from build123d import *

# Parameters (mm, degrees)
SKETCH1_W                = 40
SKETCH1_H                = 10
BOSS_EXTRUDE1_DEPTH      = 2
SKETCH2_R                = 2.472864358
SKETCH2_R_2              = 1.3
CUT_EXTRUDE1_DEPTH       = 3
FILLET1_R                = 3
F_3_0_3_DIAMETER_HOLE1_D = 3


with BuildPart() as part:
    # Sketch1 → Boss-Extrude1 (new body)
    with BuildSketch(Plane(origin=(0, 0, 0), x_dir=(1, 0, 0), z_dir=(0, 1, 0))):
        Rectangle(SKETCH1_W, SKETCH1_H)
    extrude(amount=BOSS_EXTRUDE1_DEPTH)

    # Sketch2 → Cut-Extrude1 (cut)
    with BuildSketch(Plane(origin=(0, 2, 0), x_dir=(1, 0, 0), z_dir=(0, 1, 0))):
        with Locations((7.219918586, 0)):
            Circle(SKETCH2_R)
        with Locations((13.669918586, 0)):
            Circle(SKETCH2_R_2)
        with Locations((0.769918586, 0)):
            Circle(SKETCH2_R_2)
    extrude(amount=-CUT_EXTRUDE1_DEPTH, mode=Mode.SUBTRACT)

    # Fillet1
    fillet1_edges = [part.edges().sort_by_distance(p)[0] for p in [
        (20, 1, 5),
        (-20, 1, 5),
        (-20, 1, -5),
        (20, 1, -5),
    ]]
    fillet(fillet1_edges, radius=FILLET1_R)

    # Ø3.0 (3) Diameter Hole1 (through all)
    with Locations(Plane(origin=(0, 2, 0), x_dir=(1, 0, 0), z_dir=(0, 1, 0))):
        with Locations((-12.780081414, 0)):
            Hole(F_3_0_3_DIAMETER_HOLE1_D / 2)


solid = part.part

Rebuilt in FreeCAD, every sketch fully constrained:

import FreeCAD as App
import Part
import Sketcher

V = App.Vector
Q = App.Units.Quantity


def edges_at(feature, points):
    """Names of the edges that pass closest to the given points."""
    edges = feature.Shape.Edges
    near = lambda p: min(range(len(edges)), key=lambda i: edges[i].distToShape(Part.Vertex(*p))[0])
    return sorted({f"Edge{near(p) + 1}" for p in points})


def add_polygon(sketch, points):
    """Adds a closed chain of lines whose ends are joined by coincident constraints."""
    first, n = sketch.GeometryCount, len(points)
    for a, b in zip(points, points[1:] + points[:1]):
        sketch.addGeometry(Part.LineSegment(App.Vector(*a, 0), App.Vector(*b, 0)), False)
    for i in range(n):
        sketch.addConstraint(Sketcher.Constraint("Coincident", first + i, 2, first + (i + 1) % n, 1))

doc = App.newDocument("Part")
body = doc.addObject("PartDesign::Body", "Body")

sketch1 = doc.addObject("Sketcher::SketchObject", "Sketch")
body.addObject(sketch1)
sketch1.AttachmentSupport = (doc.XZ_Plane, [""])
sketch1.MapMode = "FlatFace"
add_polygon(sketch1, [(-20, -5), (-20, 5), (20, 5), (20, -5)])
sketch1.addConstraint([
    Sketcher.Constraint("Vertical", 0),
    Sketcher.Constraint("Horizontal", 1),
    Sketcher.Constraint("Vertical", 2),
    Sketcher.Constraint("Horizontal", 3),
    Sketcher.Constraint("Symmetric", 0, 2, 2, 2, -1, 1),
    Sketcher.Constraint("DistanceX", 1, 1, 1, 2, Q("40 mm")),
    Sketcher.Constraint("DistanceY", 0, 1, 0, 2, Q("10 mm")),
])
pad1 = doc.addObject("PartDesign::Pad", "Pad")
body.addObject(pad1)
pad1.Profile = sketch1
pad1.Length = 2
pad1.Reversed = True

sketch2 = doc.addObject("Sketcher::SketchObject", "Sketch001")
body.addObject(sketch2)
sketch2.AttachmentSupport = (doc.XZ_Plane, [""])
sketch2.MapMode = "FlatFace"
sketch2.AttachmentOffset = App.Placement(V(0, 0, -2), App.Rotation())
sketch2.addGeometry([
    Part.Circle(V(7.2, 0, 0), V(0, 0, 1), 2.5),
    Part.Circle(V(13.7, 0, 0), V(0, 0, 1), 1.3),
    Part.Circle(V(0.8, 0, 0), V(0, 0, 1), 1.3),
], False)
sketch2.addConstraint([
    Sketcher.Constraint("Equal", 1, 2),
    Sketcher.Constraint("PointOnObject", 0, 3, -1),
    Sketcher.Constraint("PointOnObject", 1, 3, -1),
    Sketcher.Constraint("PointOnObject", 2, 3, -1),
    Sketcher.Constraint("Diameter", 1, Q("2.6 mm")),
    Sketcher.Constraint("DistanceX", 2, 3, 1, 3, Q("12.9 mm")),
    Sketcher.Constraint("Diameter", 0, Q("4.945729 mm")),
    Sketcher.Constraint("DistanceX", 0, 3, 1, 3, Q("6.45 mm")),
    Sketcher.Constraint("DistanceX", -1, 1, 0, 3, Q("7.219919 mm")),
])
pocket1 = doc.addObject("PartDesign::Pocket", "Pocket")
body.addObject(pocket1)
pocket1.Profile = sketch2
pocket1.Length = 3
pocket1.Reversed = True
doc.recompute()

fillet = doc.addObject("PartDesign::Fillet", "Fillet")
body.addObject(fillet)
fillet.Base = (pocket1, edges_at(pocket1, [
    (20, 1, 5),
    (-20, 1, 5),
    (-20, 1, -5),
    (20, 1, -5),
]))
fillet.Radius = 3

sketch3 = doc.addObject("Sketcher::SketchObject", "Sketch002")
body.addObject(sketch3)
sketch3.AttachmentSupport = (doc.XZ_Plane, [""])
sketch3.MapMode = "FlatFace"
sketch3.AttachmentOffset = App.Placement(V(0, 0, -2), App.Rotation())
sketch3.addGeometry(Part.Circle(V(-12.8, 0, 0), V(0, 0, 1), 1.5), False)
sketch3.addConstraint([
    Sketcher.Constraint("PointOnObject", 0, 3, -1),
    Sketcher.Constraint("Diameter", 0, Q("3 mm")),
    Sketcher.Constraint("DistanceX", 0, 3, -1, 1, Q("12.780081 mm")),
])
doc.recompute()
hole = doc.addObject("PartDesign::Hole", "Hole")
body.addObject(hole)
hole.Profile = sketch3
hole.ThreadType = "None"
hole.Diameter = 3
hole.DepthType = "ThroughAll"
hole.Reversed = True

doc.recompute()
